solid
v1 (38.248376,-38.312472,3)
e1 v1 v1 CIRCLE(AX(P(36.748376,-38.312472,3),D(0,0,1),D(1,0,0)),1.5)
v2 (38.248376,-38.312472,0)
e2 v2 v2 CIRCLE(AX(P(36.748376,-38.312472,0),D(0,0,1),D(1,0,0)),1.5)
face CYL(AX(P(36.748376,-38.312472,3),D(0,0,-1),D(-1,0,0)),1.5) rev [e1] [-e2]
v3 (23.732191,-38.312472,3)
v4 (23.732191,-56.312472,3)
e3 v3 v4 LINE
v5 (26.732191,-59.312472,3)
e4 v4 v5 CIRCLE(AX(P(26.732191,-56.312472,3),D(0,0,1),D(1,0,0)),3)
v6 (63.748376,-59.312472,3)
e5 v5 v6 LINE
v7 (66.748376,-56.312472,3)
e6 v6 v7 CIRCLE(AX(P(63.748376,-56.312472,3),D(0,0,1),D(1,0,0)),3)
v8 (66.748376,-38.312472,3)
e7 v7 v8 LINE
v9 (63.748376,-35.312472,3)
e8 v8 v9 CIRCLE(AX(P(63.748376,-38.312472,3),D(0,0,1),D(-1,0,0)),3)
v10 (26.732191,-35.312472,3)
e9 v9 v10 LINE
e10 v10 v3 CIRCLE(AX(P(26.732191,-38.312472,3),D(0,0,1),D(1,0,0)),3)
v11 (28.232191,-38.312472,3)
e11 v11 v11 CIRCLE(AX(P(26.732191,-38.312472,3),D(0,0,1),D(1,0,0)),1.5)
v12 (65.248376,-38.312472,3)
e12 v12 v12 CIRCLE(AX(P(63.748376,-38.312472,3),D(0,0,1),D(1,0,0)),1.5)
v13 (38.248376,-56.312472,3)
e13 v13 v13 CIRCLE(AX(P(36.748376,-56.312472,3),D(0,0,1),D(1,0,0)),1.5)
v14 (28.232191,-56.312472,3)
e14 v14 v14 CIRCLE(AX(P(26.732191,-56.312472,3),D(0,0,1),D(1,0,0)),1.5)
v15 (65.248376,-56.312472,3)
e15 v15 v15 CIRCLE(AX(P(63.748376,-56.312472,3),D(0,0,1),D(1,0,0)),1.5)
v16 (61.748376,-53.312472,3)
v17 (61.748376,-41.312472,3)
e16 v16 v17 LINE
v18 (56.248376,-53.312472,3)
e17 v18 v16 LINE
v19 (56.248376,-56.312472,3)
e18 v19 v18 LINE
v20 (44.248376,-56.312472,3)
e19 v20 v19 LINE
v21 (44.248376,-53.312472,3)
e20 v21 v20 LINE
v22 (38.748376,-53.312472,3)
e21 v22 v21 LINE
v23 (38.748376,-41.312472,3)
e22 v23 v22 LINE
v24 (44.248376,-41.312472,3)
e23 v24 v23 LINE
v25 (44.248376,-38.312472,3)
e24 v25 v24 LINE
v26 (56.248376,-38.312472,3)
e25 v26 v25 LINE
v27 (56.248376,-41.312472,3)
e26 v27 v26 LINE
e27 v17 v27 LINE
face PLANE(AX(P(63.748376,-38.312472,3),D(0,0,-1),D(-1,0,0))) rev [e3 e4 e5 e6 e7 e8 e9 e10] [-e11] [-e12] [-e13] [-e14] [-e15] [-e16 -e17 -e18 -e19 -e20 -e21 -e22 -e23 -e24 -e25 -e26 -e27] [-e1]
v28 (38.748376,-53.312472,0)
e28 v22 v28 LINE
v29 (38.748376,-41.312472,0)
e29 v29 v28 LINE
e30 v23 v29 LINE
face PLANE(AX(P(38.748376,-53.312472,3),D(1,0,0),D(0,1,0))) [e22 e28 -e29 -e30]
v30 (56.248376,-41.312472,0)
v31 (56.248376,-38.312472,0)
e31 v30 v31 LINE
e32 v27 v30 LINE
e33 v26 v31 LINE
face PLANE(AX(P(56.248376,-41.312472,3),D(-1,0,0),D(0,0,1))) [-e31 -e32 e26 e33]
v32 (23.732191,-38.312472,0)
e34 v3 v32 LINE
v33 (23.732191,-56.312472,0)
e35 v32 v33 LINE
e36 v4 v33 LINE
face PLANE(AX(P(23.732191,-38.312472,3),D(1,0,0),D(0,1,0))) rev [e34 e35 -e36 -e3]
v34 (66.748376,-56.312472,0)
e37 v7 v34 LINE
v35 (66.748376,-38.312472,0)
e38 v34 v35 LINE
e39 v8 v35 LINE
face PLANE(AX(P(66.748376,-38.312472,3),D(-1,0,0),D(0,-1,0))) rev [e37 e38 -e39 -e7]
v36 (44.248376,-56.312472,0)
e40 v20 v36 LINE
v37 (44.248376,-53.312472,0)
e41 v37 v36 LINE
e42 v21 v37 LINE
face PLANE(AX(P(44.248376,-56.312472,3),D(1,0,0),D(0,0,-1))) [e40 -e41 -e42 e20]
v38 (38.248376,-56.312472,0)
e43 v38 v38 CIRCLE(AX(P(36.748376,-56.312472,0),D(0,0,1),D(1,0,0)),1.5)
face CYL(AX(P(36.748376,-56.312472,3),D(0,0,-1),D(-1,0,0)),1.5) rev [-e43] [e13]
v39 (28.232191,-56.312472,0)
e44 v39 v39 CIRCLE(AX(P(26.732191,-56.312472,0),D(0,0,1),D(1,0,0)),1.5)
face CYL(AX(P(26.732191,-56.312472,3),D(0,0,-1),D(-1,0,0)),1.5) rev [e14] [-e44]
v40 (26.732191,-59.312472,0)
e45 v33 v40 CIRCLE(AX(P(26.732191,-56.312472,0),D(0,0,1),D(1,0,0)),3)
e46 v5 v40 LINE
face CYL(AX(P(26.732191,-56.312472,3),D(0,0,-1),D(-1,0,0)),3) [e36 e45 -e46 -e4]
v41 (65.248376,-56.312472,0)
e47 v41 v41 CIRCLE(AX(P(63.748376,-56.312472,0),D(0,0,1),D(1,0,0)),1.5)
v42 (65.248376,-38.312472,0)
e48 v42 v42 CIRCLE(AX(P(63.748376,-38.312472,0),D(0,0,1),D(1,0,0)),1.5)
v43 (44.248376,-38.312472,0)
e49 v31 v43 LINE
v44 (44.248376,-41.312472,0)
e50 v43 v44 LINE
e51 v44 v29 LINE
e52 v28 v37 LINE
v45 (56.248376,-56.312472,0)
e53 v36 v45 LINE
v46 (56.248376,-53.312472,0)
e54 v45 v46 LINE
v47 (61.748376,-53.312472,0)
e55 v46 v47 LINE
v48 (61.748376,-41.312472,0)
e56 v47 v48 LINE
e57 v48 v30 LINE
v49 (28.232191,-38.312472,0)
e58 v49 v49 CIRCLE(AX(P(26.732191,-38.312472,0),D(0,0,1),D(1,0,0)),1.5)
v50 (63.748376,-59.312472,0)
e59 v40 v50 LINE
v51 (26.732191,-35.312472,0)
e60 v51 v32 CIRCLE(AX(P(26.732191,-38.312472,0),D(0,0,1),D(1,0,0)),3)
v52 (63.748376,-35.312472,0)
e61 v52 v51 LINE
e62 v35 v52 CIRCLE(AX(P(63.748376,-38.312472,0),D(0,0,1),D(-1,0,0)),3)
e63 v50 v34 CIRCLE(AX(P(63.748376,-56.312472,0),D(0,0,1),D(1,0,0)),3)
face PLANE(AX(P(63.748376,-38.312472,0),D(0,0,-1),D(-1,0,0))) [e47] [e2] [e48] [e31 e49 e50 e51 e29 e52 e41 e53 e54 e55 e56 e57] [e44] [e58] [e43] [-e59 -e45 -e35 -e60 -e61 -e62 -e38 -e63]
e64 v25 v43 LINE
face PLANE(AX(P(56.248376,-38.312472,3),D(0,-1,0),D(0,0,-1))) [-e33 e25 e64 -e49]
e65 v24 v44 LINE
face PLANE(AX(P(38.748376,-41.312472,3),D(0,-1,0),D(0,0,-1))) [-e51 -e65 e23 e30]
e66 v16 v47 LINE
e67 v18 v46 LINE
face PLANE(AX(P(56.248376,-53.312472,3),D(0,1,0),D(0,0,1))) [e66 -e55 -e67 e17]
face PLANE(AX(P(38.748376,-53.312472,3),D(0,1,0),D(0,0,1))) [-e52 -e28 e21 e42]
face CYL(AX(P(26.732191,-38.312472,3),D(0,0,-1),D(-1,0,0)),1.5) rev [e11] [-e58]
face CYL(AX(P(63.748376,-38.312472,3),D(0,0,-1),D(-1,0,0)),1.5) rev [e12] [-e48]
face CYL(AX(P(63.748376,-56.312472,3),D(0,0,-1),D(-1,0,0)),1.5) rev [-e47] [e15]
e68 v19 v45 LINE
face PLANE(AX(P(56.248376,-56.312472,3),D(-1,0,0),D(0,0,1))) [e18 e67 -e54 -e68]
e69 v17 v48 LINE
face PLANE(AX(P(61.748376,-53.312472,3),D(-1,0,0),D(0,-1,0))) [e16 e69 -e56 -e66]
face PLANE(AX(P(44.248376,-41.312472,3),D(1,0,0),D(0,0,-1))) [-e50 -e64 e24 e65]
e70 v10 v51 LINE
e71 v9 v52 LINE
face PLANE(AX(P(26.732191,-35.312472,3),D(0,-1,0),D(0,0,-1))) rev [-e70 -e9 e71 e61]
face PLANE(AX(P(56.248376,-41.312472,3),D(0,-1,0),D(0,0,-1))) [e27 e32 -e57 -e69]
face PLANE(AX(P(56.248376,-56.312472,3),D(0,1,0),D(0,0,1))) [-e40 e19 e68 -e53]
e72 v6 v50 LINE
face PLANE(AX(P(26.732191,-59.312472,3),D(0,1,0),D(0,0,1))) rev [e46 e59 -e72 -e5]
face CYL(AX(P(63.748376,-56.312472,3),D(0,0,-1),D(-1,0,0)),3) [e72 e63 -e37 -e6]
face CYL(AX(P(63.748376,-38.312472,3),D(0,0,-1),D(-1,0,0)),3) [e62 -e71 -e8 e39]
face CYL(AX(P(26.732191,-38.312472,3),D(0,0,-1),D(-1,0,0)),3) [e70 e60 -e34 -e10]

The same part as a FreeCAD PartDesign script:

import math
import FreeCAD as App
import Part
import Sketcher

doc = App.newDocument("Part")
body = doc.addObject("PartDesign::Body", "Body")

sketch1 = doc.addObject("Sketcher::SketchObject", "Sketch")
body.addObject(sketch1)
sketch1.AttachmentSupport = (doc.XY_Plane, [""])
sketch1.MapMode = "FlatFace"
sketch1.addGeometry([
    Part.LineSegment(App.Vector(63.7, -35.3, 0), App.Vector(26.7, -35.3, 0)),
    Part.ArcOfCircle(Part.Circle(App.Vector(26.7, -38.3, 0), App.Vector(0, 0, 1), 3), math.radians(90), math.radians(180)),
    Part.LineSegment(App.Vector(23.7, -38.3, 0), App.Vector(23.7, -56.3, 0)),
    Part.ArcOfCircle(Part.Circle(App.Vector(26.7, -56.3, 0), App.Vector(0, 0, 1), 3), math.radians(180), math.radians(270)),
    Part.LineSegment(App.Vector(26.7, -59.3, 0), App.Vector(63.7, -59.3, 0)),
    Part.ArcOfCircle(Part.Circle(App.Vector(63.7, -56.3, 0), App.Vector(0, 0, 1), 3), math.radians(-90), math.radians(0)),
    Part.LineSegment(App.Vector(66.7, -56.3, 0), App.Vector(66.7, -38.3, 0)),
    Part.ArcOfCircle(Part.Circle(App.Vector(63.7, -38.3, 0), App.Vector(0, 0, 1), 3), math.radians(0), math.radians(90)),
    Part.Circle(App.Vector(63.7, -56.3, 0), App.Vector(0, 0, 1), 1.5),
    Part.Circle(App.Vector(36.7, -56.3, 0), App.Vector(0, 0, 1), 1.5),
    Part.Circle(App.Vector(26.7, -56.3, 0), App.Vector(0, 0, 1), 1.5),
    Part.LineSegment(App.Vector(44.2, -41.3, 0), App.Vector(44.2, -38.3, 0)),
    Part.LineSegment(App.Vector(44.2, -38.3, 0), App.Vector(56.2, -38.3, 0)),
    Part.LineSegment(App.Vector(56.2, -38.3, 0), App.Vector(56.2, -41.3, 0)),
    Part.LineSegment(App.Vector(56.2, -41.3, 0), App.Vector(61.7, -41.3, 0)),
    Part.LineSegment(App.Vector(61.7, -41.3, 0), App.Vector(61.7, -53.3, 0)),
    Part.LineSegment(App.Vector(61.7, -53.3, 0), App.Vector(56.2, -53.3, 0)),
    Part.LineSegment(App.Vector(56.2, -53.3, 0), App.Vector(56.2, -56.3, 0)),
    Part.LineSegment(App.Vector(56.2, -56.3, 0), App.Vector(44.2, -56.3, 0)),
    Part.LineSegment(App.Vector(44.2, -56.3, 0), App.Vector(44.2, -53.3, 0)),
    Part.LineSegment(App.Vector(44.2, -53.3, 0), App.Vector(38.7, -53.3, 0)),
    Part.LineSegment(App.Vector(38.7, -53.3, 0), App.Vector(38.7, -41.3, 0)),
    Part.LineSegment(App.Vector(38.7, -41.3, 0), App.Vector(44.2, -41.3, 0)),
    Part.Circle(App.Vector(63.7, -38.3, 0), App.Vector(0, 0, 1), 1.5),
    Part.Circle(App.Vector(36.7, -38.3, 0), App.Vector(0, 0, 1), 1.5),
    Part.Circle(App.Vector(26.7, -38.3, 0), App.Vector(0, 0, 1), 1.5),
], False)
sketch1.addConstraint([
    Sketcher.Constraint("Tangent", 0, 2, 1, 1),
    Sketcher.Constraint("Tangent", 1, 2, 2, 1),
    Sketcher.Constraint("Tangent", 2, 2, 3, 1),
    Sketcher.Constraint("Tangent", 3, 2, 4, 1),
    Sketcher.Constraint("Tangent", 4, 2, 5, 1),
    Sketcher.Constraint("Tangent", 5, 2, 6, 1),
    Sketcher.Constraint("Tangent", 6, 2, 7, 1),
    Sketcher.Constraint("Tangent", 7, 2, 0, 1),
    Sketcher.Constraint("Coincident", 11, 2, 12, 1),
    Sketcher.Constraint("Coincident", 12, 2, 13, 1),
    Sketcher.Constraint("Coincident", 13, 2, 14, 1),
    Sketcher.Constraint("Coincident", 14, 2, 15, 1),
    Sketcher.Constraint("Coincident", 15, 2, 16, 1),
    Sketcher.Constraint("Coincident", 16, 2, 17, 1),
    Sketcher.Constraint("Coincident", 17, 2, 18, 1),
    Sketcher.Constraint("Coincident", 18, 2, 19, 1),
    Sketcher.Constraint("Coincident", 19, 2, 20, 1),
    Sketcher.Constraint("Coincident", 20, 2, 21, 1),
    Sketcher.Constraint("Coincident", 21, 2, 22, 1),
    Sketcher.Constraint("Coincident", 22, 2, 11, 1),
    Sketcher.Constraint("Horizontal", 0),
    Sketcher.Constraint("Vertical", 2),
    Sketcher.Constraint("Horizontal", 4),
    Sketcher.Constraint("Vertical", 6),
    Sketcher.Constraint("Vertical", 11),
    Sketcher.Constraint("Horizontal", 12),
    Sketcher.Constraint("Vertical", 13),
    Sketcher.Constraint("Horizontal", 14),
    Sketcher.Constraint("Vertical", 15),
    Sketcher.Constraint("Horizontal", 16),
    Sketcher.Constraint("Vertical", 17),
    Sketcher.Constraint("Horizontal", 18),
    Sketcher.Constraint("Vertical", 19),
    Sketcher.Constraint("Horizontal", 20),
    Sketcher.Constraint("Vertical", 21),
    Sketcher.Constraint("Horizontal", 22),
    Sketcher.Constraint("Coincident", 8, 3, 5, 3),
    Sketcher.Constraint("Coincident", 10, 3, 3, 3),
    Sketcher.Constraint("Coincident", 23, 3, 7, 3),
    Sketcher.Constraint("Coincident", 25, 3, 1, 3),
    Sketcher.Constraint("Equal", 1, 3),
    Sketcher.Constraint("Equal", 3, 5),
    Sketcher.Constraint("Equal", 5, 7),
    Sketcher.Constraint("Equal", 8, 9),
    Sketcher.Constraint("Equal", 9, 10),
    Sketcher.Constraint("Equal", 10, 23),
    Sketcher.Constraint("Equal", 23, 24),
    Sketcher.Constraint("Equal", 24, 25),
    Sketcher.Constraint("Horizontal", 8, 3, 9, 3),
    Sketcher.Constraint("Horizontal", 23, 3, 24, 3),
    Sketcher.Constraint("Horizontal", 6, 2, 11, 2),
    Sketcher.Constraint("Horizontal", 5, 2, 17, 2),
    Sketcher.Constraint("Horizontal", 16, 2, 19, 2),
    Sketcher.Constraint("Horizontal", 14, 2, 21, 2),
    Sketcher.Constraint("Vertical", 9, 3, 24, 3),
    Sketcher.Constraint("Vertical", 13, 2, 16, 2),
    Sketcher.Constraint("Vertical", 11, 2, 18, 2),
    Sketcher.Constraint("Equal", 16, 20),
    Sketcher.Constraint("Equal", 18, 15),
    Sketcher.Constraint("Equal", 13, 17),
    Sketcher.Constraint("Diameter", 8, 3.0),
    Sketcher.Constraint("Radius", 1, 3.0),
    Sketcher.Constraint("DistanceX", 12, 1, 12, 2, 12.0),
    Sketcher.Constraint("DistanceY", 2, 2, 2, 1, 18.0),
    Sketcher.Constraint("DistanceX", 14, 1, 14, 2, 5.5),
    Sketcher.Constraint("DistanceX", 9, 3, 5, 3, 27.0),
    Sketcher.Constraint("DistanceX", 14, 2, 7, 3, 2.0),
    Sketcher.Constraint("DistanceX", 0, 2, 0, 1, 37.016186),
    Sketcher.Constraint("DistanceX", -1, 1, 1, 3, 26.732191),
    Sketcher.Constraint("DistanceY", 1, 3, -1, 1, 38.312472),
])
pad1 = doc.addObject("PartDesign::Pad", "Pad")
body.addObject(pad1)
pad1.Profile = sketch1
pad1.Length = 3

doc.recompute()
